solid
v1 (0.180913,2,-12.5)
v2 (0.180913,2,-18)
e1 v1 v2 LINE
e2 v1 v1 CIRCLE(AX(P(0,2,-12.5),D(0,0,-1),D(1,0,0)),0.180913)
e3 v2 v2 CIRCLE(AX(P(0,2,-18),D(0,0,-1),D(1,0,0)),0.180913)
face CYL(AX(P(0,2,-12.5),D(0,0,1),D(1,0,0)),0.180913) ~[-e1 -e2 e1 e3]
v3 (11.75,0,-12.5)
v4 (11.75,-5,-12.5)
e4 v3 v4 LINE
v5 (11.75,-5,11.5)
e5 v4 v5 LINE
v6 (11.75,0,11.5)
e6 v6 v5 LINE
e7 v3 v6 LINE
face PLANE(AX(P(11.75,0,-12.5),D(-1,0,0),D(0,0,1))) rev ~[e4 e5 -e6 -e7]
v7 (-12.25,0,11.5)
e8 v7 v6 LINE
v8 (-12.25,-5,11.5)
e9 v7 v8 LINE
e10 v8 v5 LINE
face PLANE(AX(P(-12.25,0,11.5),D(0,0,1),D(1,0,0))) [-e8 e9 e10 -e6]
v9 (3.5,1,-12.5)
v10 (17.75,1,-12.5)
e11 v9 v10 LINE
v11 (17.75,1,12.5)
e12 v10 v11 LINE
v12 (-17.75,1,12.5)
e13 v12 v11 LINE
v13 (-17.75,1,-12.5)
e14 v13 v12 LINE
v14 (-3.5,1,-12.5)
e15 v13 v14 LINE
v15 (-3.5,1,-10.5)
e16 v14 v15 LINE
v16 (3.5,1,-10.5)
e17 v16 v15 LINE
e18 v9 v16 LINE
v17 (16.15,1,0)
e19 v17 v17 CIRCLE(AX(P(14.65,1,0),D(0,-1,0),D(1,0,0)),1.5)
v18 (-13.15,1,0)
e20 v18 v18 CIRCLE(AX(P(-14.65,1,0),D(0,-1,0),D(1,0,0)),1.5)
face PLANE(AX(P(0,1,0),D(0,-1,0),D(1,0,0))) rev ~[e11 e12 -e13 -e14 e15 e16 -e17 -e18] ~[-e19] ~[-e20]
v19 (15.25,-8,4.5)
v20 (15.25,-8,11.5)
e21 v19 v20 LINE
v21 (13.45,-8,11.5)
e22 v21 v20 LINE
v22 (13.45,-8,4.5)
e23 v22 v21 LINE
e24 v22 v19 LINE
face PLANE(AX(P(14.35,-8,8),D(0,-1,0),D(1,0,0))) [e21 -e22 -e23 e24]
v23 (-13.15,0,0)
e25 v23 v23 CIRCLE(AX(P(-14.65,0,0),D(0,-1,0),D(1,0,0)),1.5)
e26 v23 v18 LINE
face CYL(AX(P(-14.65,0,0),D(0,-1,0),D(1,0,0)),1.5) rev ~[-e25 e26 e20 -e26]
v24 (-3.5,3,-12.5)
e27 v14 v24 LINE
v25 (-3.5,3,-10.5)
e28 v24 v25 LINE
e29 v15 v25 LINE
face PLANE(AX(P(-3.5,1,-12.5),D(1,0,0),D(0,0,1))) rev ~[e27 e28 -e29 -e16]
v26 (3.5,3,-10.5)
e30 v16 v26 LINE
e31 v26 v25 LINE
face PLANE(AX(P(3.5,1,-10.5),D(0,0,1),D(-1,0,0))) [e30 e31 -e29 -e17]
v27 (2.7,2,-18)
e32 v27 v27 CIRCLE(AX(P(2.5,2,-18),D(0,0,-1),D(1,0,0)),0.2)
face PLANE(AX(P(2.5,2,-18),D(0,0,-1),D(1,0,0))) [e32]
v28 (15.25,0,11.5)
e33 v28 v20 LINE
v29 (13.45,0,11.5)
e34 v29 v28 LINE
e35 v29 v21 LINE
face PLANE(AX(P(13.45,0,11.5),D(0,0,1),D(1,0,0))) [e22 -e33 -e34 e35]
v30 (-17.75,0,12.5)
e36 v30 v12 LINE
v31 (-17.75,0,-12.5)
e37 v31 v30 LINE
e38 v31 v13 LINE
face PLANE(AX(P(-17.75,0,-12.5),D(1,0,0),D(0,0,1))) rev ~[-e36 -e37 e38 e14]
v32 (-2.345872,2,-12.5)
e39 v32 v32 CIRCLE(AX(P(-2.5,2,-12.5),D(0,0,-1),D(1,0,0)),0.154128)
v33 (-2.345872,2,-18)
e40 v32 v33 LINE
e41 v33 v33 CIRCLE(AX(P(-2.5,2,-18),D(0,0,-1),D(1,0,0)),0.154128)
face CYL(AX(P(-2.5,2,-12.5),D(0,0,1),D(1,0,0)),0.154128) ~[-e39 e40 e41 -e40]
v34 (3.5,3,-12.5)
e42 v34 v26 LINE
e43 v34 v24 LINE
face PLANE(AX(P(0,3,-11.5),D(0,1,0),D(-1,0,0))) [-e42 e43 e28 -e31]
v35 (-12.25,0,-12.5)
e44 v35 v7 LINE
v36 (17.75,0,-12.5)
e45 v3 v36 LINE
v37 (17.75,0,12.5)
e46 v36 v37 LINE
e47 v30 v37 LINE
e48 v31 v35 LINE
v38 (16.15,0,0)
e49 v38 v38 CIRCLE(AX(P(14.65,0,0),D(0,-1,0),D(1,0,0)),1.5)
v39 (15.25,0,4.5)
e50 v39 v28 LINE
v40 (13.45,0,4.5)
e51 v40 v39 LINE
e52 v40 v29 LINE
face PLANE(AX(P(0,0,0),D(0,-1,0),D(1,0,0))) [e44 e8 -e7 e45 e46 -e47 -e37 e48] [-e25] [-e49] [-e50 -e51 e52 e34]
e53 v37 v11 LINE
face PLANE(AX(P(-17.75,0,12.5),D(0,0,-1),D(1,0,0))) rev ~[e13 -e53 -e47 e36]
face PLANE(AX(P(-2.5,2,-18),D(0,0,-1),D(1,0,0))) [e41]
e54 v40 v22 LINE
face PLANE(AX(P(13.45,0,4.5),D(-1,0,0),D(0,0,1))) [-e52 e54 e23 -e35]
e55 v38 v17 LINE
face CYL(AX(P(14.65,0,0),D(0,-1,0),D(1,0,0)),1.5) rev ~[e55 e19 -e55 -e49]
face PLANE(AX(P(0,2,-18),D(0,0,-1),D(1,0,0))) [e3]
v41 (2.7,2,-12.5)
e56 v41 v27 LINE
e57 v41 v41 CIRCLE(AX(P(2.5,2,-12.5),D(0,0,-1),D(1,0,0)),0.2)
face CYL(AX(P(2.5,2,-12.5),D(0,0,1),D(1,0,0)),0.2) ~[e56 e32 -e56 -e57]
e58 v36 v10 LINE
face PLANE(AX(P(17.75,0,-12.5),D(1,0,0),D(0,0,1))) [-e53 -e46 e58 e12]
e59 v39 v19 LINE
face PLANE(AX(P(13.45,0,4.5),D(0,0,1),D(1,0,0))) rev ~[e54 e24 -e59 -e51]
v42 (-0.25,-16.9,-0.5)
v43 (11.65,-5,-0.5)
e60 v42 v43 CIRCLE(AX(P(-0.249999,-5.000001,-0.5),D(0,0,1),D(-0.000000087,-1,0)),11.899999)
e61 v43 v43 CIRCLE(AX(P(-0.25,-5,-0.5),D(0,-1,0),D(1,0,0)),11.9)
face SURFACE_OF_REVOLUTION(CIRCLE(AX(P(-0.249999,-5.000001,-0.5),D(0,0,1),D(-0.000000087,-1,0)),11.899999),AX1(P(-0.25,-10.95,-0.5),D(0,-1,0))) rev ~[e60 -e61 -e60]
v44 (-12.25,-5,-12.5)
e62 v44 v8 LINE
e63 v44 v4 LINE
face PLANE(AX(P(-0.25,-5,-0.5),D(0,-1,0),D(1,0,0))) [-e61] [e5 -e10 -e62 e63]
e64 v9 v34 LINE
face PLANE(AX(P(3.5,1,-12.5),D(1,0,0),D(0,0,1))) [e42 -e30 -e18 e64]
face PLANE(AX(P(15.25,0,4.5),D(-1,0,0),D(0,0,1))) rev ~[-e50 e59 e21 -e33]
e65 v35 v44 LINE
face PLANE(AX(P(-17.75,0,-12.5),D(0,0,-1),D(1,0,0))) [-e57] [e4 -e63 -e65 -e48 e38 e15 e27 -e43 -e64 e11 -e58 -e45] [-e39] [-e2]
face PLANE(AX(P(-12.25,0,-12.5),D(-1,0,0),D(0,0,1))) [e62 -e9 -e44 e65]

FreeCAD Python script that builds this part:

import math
import FreeCAD as App
import Part
import Sketcher

V = App.Vector
Q = App.Units.Quantity


def add_polygon(sketch, points):
    """Adds a closed chain of lines whose ends are joined by coincident constraints."""
    first, n = sketch.GeometryCount, len(points)
    for a, b in zip(points, points[1:] + points[:1]):
        sketch.addGeometry(Part.LineSegment(App.Vector(*a, 0), App.Vector(*b, 0)), False)
    for i in range(n):
        sketch.addConstraint(Sketcher.Constraint("Coincident", first + i, 2, first + (i + 1) % n, 1))

doc = App.newDocument("Part")
params = doc.addObject("Spreadsheet::Sheet", "Params")
for row, (alias, value) in enumerate([
    ("sketch1_height", "25 mm"),
    ("sketch1_width", "35.5 mm"),
    ("pad1_length", "1 mm"),
    ("sketch2_width", "24 mm"),
    ("pad2_length", "5 mm"),
    ("sketch3_radius", "11.899999 mm"),
    ("revolution_angle", "360 deg"),
    ("sketch4_height", "7 mm"),
    ("sketch4_width", "1.8 mm"),
    ("pad3_length", "8 mm"),
    ("sketch5_diameter", "3 mm"),
    ("pocket1_length", "25 mm"),
    ("sketch6_width", "7 mm"),
    ("sketch6_height", "2 mm"),
    ("pad4_length", "2 mm"),
    ("sketch7_diameter", "0.4 mm"),
    ("pad5_length", "5.5 mm"),
], start=1):
    params.set(f"A{row}", alias)
    params.set(f"B{row}", "=" + value)
    params.setAlias(f"B{row}", alias)

body = doc.addObject("PartDesign::Body", "Body")

# Sketch on XZ plane
sketch1 = body.newObject("Sketcher::SketchObject", "Sketch")
sketch1.AttachmentSupport = (doc.getObject("XZ_Plane"), [""])
sketch1.MapMode = "FlatFace"
add_polygon(sketch1, [(-18, 12), (-18, -12), (18, -12), (18, 12)])  # lines 0-3
sketch1.addConstraint(Sketcher.Constraint("Vertical", 0))
sketch1.addConstraint(Sketcher.Constraint("Horizontal", 1))
sketch1.addConstraint(Sketcher.Constraint("Vertical", 2))
sketch1.addConstraint(Sketcher.Constraint("Horizontal", 3))
sketch1.addConstraint(Sketcher.Constraint("Symmetric", 0, 2, 2, 2, -1, 1))
sketch1.addConstraint(Sketcher.Constraint("DistanceY", 0, 2, 0, 1, Q("25 mm")))
sketch1.addConstraint(Sketcher.Constraint("DistanceX", 1, 1, 1, 2, Q("35.5 mm")))
sketch1.setExpression("Constraints[9]", "Params.sketch1_height")
sketch1.setExpression("Constraints[10]", "Params.sketch1_width")
pad1 = body.newObject("PartDesign::Pad", "Pad")
pad1.Profile = sketch1
pad1.setExpression("Length", "Params.pad1_length")
pad1.Reversed = True

# Sketch on XZ plane
sketch2 = body.newObject("Sketcher::SketchObject", "Sketch001")
sketch2.AttachmentSupport = (doc.getObject("XZ_Plane"), [""])
sketch2.MapMode = "FlatFace"
add_polygon(sketch2, [(-12, 12), (-12, -12), (12, -12), (12, 12)])  # lines 0-3
sketch2.addConstraint(Sketcher.Constraint("Vertical", 0))
sketch2.addConstraint(Sketcher.Constraint("Horizontal", 1))
sketch2.addConstraint(Sketcher.Constraint("Vertical", 2))
sketch2.addConstraint(Sketcher.Constraint("Horizontal", 3))
sketch2.addConstraint(Sketcher.Constraint("Equal", 3, 0))
sketch2.addConstraint(Sketcher.Constraint("DistanceX", 1, 1, 1, 2, Q("24 mm")))
sketch2.addConstraint(Sketcher.Constraint("DistanceY", 0, 2, -1, 1, Q("12.5 mm")))
sketch2.addConstraint(Sketcher.Constraint("DistanceX", 0, 2, -1, 1, Q("12.25 mm")))
sketch2.setExpression("Constraints[9]", "Params.sketch2_width")
pad2 = body.newObject("PartDesign::Pad", "Pad001")
pad2.Profile = sketch2
pad2.setExpression("Length", "Params.pad2_length")

# Sketch on XY plane
sketch3 = body.newObject("Sketcher::SketchObject", "Sketch002")
sketch3.AttachmentSupport = (doc.getObject("XY_Plane"), [""])
sketch3.MapMode = "FlatFace"
sketch3.AttachmentOffset = App.Placement(V(0, 0, -0.5), App.Rotation())
sketch3.addGeometry(Part.ArcOfCircle(Part.Circle(V(0, -5, 0), V(0, 0, 1), 12), math.radians(-90), math.radians(0)), False)
sketch3.addGeometry(Part.LineSegment(V(12, -5, 0), V(0, -5, 0)), False)
sketch3.addGeometry(Part.LineSegment(V(0, -5, 0), V(0, -17, 0)), False)
sketch3.addGeometry(Part.LineSegment(V(0, -5, 0), V(0, -17, 0)), True)  # axis
sketch3.addConstraint(Sketcher.Constraint("Coincident", 0, 2, 1, 1))
sketch3.addConstraint(Sketcher.Constraint("Coincident", 1, 2, 2, 1))
sketch3.addConstraint(Sketcher.Constraint("Coincident", 2, 2, 0, 1))
sketch3.addConstraint(Sketcher.Constraint("Horizontal", 1))
sketch3.addConstraint(Sketcher.Constraint("Vertical", 2))
sketch3.addConstraint(Sketcher.Constraint("Vertical", 3))
sketch3.addConstraint(Sketcher.Constraint("Coincident", 1, 2, 0, 3))
sketch3.addConstraint(Sketcher.Constraint("Coincident", 3, 1, 0, 3))
sketch3.addConstraint(Sketcher.Constraint("Equal", 2, 3))
sketch3.addConstraint(Sketcher.Constraint("Radius", 0, Q("11.899999 mm")))
sketch3.addConstraint(Sketcher.Constraint("DistanceY", 0, 3, -1, 1, Q("5.000001 mm")))
sketch3.addConstraint(Sketcher.Constraint("DistanceX", 0, 3, -1, 1, Q("0.249999 mm")))
sketch3.setExpression("Constraints[9]", "Params.sketch3_radius")
revolution = body.newObject("PartDesign::Revolution", "Revolution")
revolution.Profile = sketch3
revolution.ReferenceAxis = (sketch3, ["Axis0"])
revolution.setExpression("Angle", "Params.revolution_angle")

# Sketch on XZ plane
sketch4 = body.newObject("Sketcher::SketchObject", "Sketch003")
sketch4.AttachmentSupport = (doc.getObject("XZ_Plane"), [""])
sketch4.MapMode = "FlatFace"
add_polygon(sketch4, [(13.4, 11.5), (13.4, 4.5), (15.2, 4.5), (15.2, 11.5)])  # lines 0-3
sketch4.addConstraint(Sketcher.Constraint("Vertical", 0))
sketch4.addConstraint(Sketcher.Constraint("Horizontal", 1))
sketch4.addConstraint(Sketcher.Constraint("Vertical", 2))
sketch4.addConstraint(Sketcher.Constraint("Horizontal", 3))
sketch4.addConstraint(Sketcher.Constraint("DistanceY", 0, 2, 0, 1, Q("7 mm")))
sketch4.addConstraint(Sketcher.Constraint("DistanceX", 1, 1, 1, 2, Q("1.8 mm")))
sketch4.addConstraint(Sketcher.Constraint("DistanceY", -1, 1, 0, 2, Q("4.5 mm")))
sketch4.addConstraint(Sketcher.Constraint("DistanceX", -1, 1, 0, 2, Q("13.45 mm")))
sketch4.setExpression("Constraints[8]", "Params.sketch4_height")
sketch4.setExpression("Constraints[9]", "Params.sketch4_width")
pad3 = body.newObject("PartDesign::Pad", "Pad002")
pad3.Profile = sketch4
pad3.setExpression("Length", "Params.pad3_length")

# Sketch on XZ plane
sketch5 = body.newObject("Sketcher::SketchObject", "Sketch004")
sketch5.AttachmentSupport = (doc.getObject("XZ_Plane"), [""])
sketch5.MapMode = "FlatFace"
sketch5.addGeometry(Part.Circle(V(-14.7, 0, 0), V(0, 0, 1), 1.5), False)
sketch5.addGeometry(Part.Circle(V(14.7, 0, 0), V(0, 0, 1), 1.5), False)
sketch5.addConstraint(Sketcher.Constraint("Equal", 0, 1))
sketch5.addConstraint(Sketcher.Constraint("Symmetric", 0, 3, 1, 3, -1, 1))
sketch5.addConstraint(Sketcher.Constraint("PointOnObject", 0, 3, -1))
sketch5.addConstraint(Sketcher.Constraint("Diameter", 0, Q("3 mm")))
sketch5.addConstraint(Sketcher.Constraint("DistanceX", 0, 3, 1, 3, Q("29.3 mm")))
sketch5.setExpression("Constraints[3]", "Params.sketch5_diameter")
pocket1 = body.newObject("PartDesign::Pocket", "Pocket")
pocket1.Profile = sketch5
pocket1.setExpression("Length", "Params.pocket1_length")

# Sketch on XZ plane
sketch6 = body.newObject("Sketcher::SketchObject", "Sketch005")
sketch6.AttachmentSupport = (doc.getObject("XZ_Plane"), [""])
sketch6.MapMode = "FlatFace"
sketch6.AttachmentOffset = App.Placement(V(0, 0, -1), App.Rotation())
add_polygon(sketch6, [(3.5, -10.5), (3.5, -12.5), (-3.5, -12.5), (-3.5, -10.5)])  # lines 0-3
sketch6.addConstraint(Sketcher.Constraint("Vertical", 0))
sketch6.addConstraint(Sketcher.Constraint("Horizontal", 1))
sketch6.addConstraint(Sketcher.Constraint("Vertical", 2))
sketch6.addConstraint(Sketcher.Constraint("Horizontal", 3))
sketch6.addConstraint(Sketcher.Constraint("DistanceX", 1, 2, 1, 1, Q("7 mm")))
sketch6.addConstraint(Sketcher.Constraint("DistanceY", 0, 2, 0, 1, Q("2 mm")))
sketch6.addConstraint(Sketcher.Constraint("DistanceX", -1, 1, 0, 2, Q("3.5 mm")))
sketch6.addConstraint(Sketcher.Constraint("DistanceY", 0, 2, -1, 1, Q("12.5 mm")))
sketch6.setExpression("Constraints[8]", "Params.sketch6_width")
sketch6.setExpression("Constraints[9]", "Params.sketch6_height")
pad4 = body.newObject("PartDesign::Pad", "Pad003")
pad4.Profile = sketch6
pad4.setExpression("Length", "Params.pad4_length")
pad4.Reversed = True

# Sketch on XY plane
sketch7 = body.newObject("Sketcher::SketchObject", "Sketch006")
sketch7.AttachmentSupport = (doc.getObject("XY_Plane"), [""])
sketch7.MapMode = "FlatFace"
sketch7.AttachmentOffset = App.Placement(V(0, 0, -12.5), App.Rotation())
sketch7.addGeometry(Part.Circle(V(2.5, 2, 0), V(0, 0, 1), 0.2), False)
sketch7.addGeometry(Part.Circle(V(0, 2, 0), V(0, 0, 1), 0.18), False)
sketch7.addGeometry(Part.Circle(V(-2.5, 2, 0), V(0, 0, 1), 0.15), False)
sketch7.addConstraint(Sketcher.Constraint("Symmetric", 0, 3, 2, 3, -2))
sketch7.addConstraint(Sketcher.Constraint("PointOnObject", 1, 3, -2))
sketch7.addConstraint(Sketcher.Constraint("Horizontal", 0, 3, 1, 3))
sketch7.addConstraint(Sketcher.Constraint("Diameter", 0, Q("0.4 mm")))
sketch7.addConstraint(Sketcher.Constraint("DistanceY", -1, 1, 0, 3, Q("2 mm")))
sketch7.addConstraint(Sketcher.Constraint("DistanceX", 2, 3, 0, 3, Q("5 mm")))
sketch7.addConstraint(Sketcher.Constraint("Diameter", 1, Q("0.361826 mm")))
sketch7.addConstraint(Sketcher.Constraint("Diameter", 2, Q("0.308256 mm")))
sketch7.setExpression("Constraints[3]", "Params.sketch7_diameter")
pad5 = body.newObject("PartDesign::Pad", "Pad004")
pad5.Profile = sketch7
pad5.setExpression("Length", "Params.pad5_length")
pad5.Reversed = True

doc.recompute()
